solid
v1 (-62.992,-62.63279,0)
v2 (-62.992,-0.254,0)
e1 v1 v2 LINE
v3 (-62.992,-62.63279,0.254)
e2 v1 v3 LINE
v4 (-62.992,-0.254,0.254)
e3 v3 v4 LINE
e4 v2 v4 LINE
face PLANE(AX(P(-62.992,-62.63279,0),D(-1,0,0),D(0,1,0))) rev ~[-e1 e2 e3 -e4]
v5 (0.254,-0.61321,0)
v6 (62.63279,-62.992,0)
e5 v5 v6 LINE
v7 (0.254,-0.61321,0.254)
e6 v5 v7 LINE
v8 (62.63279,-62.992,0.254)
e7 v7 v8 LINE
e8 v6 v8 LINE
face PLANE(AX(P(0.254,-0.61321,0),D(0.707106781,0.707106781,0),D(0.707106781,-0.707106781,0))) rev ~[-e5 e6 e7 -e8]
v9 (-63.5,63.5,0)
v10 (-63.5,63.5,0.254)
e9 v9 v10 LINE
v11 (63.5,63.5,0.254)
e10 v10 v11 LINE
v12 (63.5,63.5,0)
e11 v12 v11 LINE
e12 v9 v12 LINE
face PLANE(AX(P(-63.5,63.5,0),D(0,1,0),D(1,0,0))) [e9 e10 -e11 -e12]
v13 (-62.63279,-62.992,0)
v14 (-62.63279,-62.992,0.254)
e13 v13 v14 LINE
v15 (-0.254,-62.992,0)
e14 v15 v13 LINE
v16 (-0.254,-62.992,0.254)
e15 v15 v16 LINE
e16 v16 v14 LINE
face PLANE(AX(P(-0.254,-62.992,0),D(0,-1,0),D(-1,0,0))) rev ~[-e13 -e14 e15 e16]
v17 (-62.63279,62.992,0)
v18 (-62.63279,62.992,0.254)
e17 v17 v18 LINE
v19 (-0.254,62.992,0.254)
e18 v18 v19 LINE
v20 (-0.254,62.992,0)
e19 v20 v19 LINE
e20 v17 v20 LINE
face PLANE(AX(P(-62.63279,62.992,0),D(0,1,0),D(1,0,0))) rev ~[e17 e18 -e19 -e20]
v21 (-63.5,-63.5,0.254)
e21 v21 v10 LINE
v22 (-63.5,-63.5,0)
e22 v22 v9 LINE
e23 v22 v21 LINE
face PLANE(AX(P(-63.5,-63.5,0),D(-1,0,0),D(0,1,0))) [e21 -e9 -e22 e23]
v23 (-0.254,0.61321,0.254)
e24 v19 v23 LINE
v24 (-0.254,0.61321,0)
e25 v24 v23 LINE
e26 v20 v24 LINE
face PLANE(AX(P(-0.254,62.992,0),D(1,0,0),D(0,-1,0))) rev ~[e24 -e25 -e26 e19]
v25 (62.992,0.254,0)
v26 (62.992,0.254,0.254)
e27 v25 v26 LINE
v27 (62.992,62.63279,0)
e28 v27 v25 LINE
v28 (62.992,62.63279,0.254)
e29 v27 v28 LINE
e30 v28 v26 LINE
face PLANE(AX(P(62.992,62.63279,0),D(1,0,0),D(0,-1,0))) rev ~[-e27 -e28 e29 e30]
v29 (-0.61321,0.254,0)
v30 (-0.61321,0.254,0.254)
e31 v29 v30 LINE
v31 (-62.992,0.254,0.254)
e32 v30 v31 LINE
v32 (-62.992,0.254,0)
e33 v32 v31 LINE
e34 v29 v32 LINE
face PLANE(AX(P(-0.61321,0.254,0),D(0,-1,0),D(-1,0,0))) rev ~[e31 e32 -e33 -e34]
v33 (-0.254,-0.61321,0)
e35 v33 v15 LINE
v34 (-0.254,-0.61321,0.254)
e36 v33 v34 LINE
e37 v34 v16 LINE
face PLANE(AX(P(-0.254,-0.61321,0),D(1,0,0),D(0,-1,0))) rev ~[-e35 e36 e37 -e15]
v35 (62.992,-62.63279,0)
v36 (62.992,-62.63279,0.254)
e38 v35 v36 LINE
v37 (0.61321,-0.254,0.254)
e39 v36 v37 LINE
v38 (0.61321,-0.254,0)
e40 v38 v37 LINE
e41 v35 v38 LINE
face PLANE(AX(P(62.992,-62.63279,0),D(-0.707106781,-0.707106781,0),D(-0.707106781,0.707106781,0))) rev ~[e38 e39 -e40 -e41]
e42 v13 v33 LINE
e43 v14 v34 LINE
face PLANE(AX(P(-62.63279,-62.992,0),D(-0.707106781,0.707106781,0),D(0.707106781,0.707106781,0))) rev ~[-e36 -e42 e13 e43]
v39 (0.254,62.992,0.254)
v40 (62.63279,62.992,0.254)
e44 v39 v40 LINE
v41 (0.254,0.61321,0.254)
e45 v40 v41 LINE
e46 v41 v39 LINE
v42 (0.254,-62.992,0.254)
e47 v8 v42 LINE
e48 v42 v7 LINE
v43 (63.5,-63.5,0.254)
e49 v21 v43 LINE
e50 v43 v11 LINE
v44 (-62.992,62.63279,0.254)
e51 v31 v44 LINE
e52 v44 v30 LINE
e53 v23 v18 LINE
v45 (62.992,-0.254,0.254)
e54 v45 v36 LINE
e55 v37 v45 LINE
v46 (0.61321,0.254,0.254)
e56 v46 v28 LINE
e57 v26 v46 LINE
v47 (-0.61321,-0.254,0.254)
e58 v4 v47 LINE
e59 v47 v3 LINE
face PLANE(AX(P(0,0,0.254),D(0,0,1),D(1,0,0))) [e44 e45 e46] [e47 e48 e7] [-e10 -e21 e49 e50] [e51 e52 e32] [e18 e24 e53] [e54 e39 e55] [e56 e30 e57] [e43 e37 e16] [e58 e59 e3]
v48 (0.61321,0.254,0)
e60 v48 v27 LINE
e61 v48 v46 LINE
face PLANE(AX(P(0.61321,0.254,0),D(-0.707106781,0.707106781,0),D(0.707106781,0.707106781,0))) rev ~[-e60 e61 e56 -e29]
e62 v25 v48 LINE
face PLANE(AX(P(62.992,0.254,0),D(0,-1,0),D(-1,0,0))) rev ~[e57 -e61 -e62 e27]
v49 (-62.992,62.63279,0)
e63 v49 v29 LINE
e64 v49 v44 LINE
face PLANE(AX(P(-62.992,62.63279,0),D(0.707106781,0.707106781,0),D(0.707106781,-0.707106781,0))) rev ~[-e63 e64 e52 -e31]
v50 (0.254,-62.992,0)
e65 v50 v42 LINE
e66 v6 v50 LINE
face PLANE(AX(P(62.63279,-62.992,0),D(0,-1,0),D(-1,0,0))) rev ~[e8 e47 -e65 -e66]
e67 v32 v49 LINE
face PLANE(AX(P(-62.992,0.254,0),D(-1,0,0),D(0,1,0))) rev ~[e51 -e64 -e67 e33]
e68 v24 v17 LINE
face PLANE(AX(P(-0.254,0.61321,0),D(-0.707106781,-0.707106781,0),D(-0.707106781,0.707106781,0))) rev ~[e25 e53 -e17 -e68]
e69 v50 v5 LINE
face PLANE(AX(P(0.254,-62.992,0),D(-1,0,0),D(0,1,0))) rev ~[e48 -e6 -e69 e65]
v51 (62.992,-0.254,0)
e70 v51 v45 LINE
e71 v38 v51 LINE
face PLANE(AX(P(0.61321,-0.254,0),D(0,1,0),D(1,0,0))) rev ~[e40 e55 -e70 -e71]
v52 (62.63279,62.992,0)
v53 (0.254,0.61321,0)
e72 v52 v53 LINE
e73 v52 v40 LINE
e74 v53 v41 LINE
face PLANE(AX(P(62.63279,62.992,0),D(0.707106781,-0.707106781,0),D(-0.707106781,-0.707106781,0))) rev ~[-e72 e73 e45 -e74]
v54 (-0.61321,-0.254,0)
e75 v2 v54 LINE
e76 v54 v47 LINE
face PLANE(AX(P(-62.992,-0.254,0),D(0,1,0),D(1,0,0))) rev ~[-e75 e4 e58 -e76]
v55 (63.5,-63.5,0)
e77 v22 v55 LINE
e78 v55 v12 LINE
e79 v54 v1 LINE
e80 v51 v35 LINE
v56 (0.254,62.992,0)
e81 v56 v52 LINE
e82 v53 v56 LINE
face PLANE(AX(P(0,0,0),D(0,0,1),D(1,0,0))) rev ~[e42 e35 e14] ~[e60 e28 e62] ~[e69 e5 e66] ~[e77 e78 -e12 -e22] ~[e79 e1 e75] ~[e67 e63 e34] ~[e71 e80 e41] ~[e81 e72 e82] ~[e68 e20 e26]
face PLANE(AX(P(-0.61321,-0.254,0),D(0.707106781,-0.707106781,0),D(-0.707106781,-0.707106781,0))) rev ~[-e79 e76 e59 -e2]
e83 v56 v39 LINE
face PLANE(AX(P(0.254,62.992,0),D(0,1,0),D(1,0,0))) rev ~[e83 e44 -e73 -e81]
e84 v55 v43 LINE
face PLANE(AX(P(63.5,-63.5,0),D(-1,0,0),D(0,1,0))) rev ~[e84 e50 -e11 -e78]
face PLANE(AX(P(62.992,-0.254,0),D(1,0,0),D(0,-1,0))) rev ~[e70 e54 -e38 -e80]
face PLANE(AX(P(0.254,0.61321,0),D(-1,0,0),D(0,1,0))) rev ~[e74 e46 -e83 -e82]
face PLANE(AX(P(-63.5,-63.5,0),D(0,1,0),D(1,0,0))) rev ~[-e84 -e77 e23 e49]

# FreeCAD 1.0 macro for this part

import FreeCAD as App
import Part
import Sketcher

V = App.Vector
Q = App.Units.Quantity

doc = App.newDocument("Part")
body = doc.addObject("PartDesign::Body", "Body")

# Sketch on XY plane
sketch1 = body.newObject("Sketcher::SketchObject", "Sketch")
sketch1.AttachmentSupport = (doc.getObject("XY_Plane"), [""])
sketch1.MapMode = "FlatFace"
sketch1.addGeometry(Part.LineSegment(V(-63.5, 63.5, 0), V(-63.5, -63.5, 0)), False)
sketch1.addGeometry(Part.LineSegment(V(-63.5, -63.5, 0), V(63.5, -63.5, 0)), False)
sketch1.addGeometry(Part.LineSegment(V(63.5, -63.5, 0), V(63.5, 63.5, 0)), False)
sketch1.addGeometry(Part.LineSegment(V(63.5, 63.5, 0), V(-63.5, 63.5, 0)), False)
sketch1.addGeometry(Part.LineSegment(V(-0.254, -0.61321, 0), V(-0.254, -62.992, 0)), False)
sketch1.addGeometry(Part.LineSegment(V(-0.254, -62.992, 0), V(-62.63279, -62.992, 0)), False)
sketch1.addGeometry(Part.LineSegment(V(-62.63279, -62.992, 0), V(-0.254, -0.61321, 0)), False)
sketch1.addGeometry(Part.LineSegment(V(-62.992, -0.254, 0), V(-0.61321, -0.254, 0)), False)
sketch1.addGeometry(Part.LineSegment(V(-0.61321, -0.254, 0), V(-62.992, -62.63279, 0)), False)
sketch1.addGeometry(Part.LineSegment(V(-62.992, -62.63279, 0), V(-62.992, -0.254, 0)), False)
sketch1.addGeometry(Part.LineSegment(V(0.254, -0.61321, 0), V(62.63279, -62.992, 0)), False)
sketch1.addGeometry(Part.LineSegment(V(62.63279, -62.992, 0), V(0.254, -62.992, 0)), False)
sketch1.addGeometry(Part.LineSegment(V(0.254, -62.992, 0), V(0.254, -0.61321, 0)), False)
sketch1.addGeometry(Part.LineSegment(V(0.61321, -0.254, 0), V(62.992, -0.254, 0)), False)
sketch1.addGeometry(Part.LineSegment(V(62.992, -0.254, 0), V(62.992, -62.63279, 0)), False)
sketch1.addGeometry(Part.LineSegment(V(62.992, -62.63279, 0), V(0.61321, -0.254, 0)), False)
sketch1.addGeometry(Part.LineSegment(V(-0.61321, 0.254, 0), V(-62.992, 0.254, 0)), False)
sketch1.addGeometry(Part.LineSegment(V(-62.992, 0.254, 0), V(-62.992, 62.63279, 0)), False)
sketch1.addGeometry(Part.LineSegment(V(-62.992, 62.63279, 0), V(-0.61321, 0.254, 0)), False)
sketch1.addGeometry(Part.LineSegment(V(-0.254, 62.992, 0), V(-0.254, 0.61321, 0)), False)
sketch1.addGeometry(Part.LineSegment(V(-0.254, 0.61321, 0), V(-62.63279, 62.992, 0)), False)
sketch1.addGeometry(Part.LineSegment(V(-62.63279, 62.992, 0), V(-0.254, 62.992, 0)), False)
sketch1.addGeometry(Part.LineSegment(V(62.992, 0.254, 0), V(0.61321, 0.254, 0)), False)
sketch1.addGeometry(Part.LineSegment(V(0.61321, 0.254, 0), V(62.992, 62.63279, 0)), False)
sketch1.addGeometry(Part.LineSegment(V(62.992, 62.63279, 0), V(62.992, 0.254, 0)), False)
sketch1.addGeometry(Part.LineSegment(V(62.63279, 62.992, 0), V(0.254, 0.61321, 0)), False)
sketch1.addGeometry(Part.LineSegment(V(0.254, 0.61321, 0), V(0.254, 62.992, 0)), False)
sketch1.addGeometry(Part.LineSegment(V(0.254, 62.992, 0), V(62.63279, 62.992, 0)), False)
sketch1.addConstraint(Sketcher.Constraint("Coincident", 0, 2, 1, 1))
sketch1.addConstraint(Sketcher.Constraint("Coincident", 1, 2, 2, 1))
sketch1.addConstraint(Sketcher.Constraint("Coincident", 2, 2, 3, 1))
sketch1.addConstraint(Sketcher.Constraint("Coincident", 3, 2, 0, 1))
sketch1.addConstraint(Sketcher.Constraint("Coincident", 4, 2, 5, 1))
sketch1.addConstraint(Sketcher.Constraint("Coincident", 5, 2, 6, 1))
sketch1.addConstraint(Sketcher.Constraint("Coincident", 6, 2, 4, 1))
sketch1.addConstraint(Sketcher.Constraint("Coincident", 7, 2, 8, 1))
sketch1.addConstraint(Sketcher.Constraint("Coincident", 8, 2, 9, 1))
sketch1.addConstraint(Sketcher.Constraint("Coincident", 9, 2, 7, 1))
sketch1.addConstraint(Sketcher.Constraint("Coincident", 10, 2, 11, 1))
sketch1.addConstraint(Sketcher.Constraint("Coincident", 11, 2, 12, 1))
sketch1.addConstraint(Sketcher.Constraint("Coincident", 12, 2, 10, 1))
sketch1.addConstraint(Sketcher.Constraint("Coincident", 13, 2, 14, 1))
sketch1.addConstraint(Sketcher.Constraint("Coincident", 14, 2, 15, 1))
sketch1.addConstraint(Sketcher.Constraint("Coincident", 15, 2, 13, 1))
sketch1.addConstraint(Sketcher.Constraint("Coincident", 16, 2, 17, 1))
sketch1.addConstraint(Sketcher.Constraint("Coincident", 17, 2, 18, 1))
sketch1.addConstraint(Sketcher.Constraint("Coincident", 18, 2, 16, 1))
sketch1.addConstraint(Sketcher.Constraint("Coincident", 19, 2, 20, 1))
sketch1.addConstraint(Sketcher.Constraint("Coincident", 20, 2, 21, 1))
sketch1.addConstraint(Sketcher.Constraint("Coincident", 21, 2, 19, 1))
sketch1.addConstraint(Sketcher.Constraint("Coincident", 22, 2, 23, 1))
sketch1.addConstraint(Sketcher.Constraint("Coincident", 23, 2, 24, 1))
sketch1.addConstraint(Sketcher.Constraint("Coincident", 24, 2, 22, 1))
sketch1.addConstraint(Sketcher.Constraint("Coincident", 25, 2, 26, 1))
sketch1.addConstraint(Sketcher.Constraint("Coincident", 26, 2, 27, 1))
sketch1.addConstraint(Sketcher.Constraint("Coincident", 27, 2, 25, 1))
sketch1.addConstraint(Sketcher.Constraint("Vertical", 0))
sketch1.addConstraint(Sketcher.Constraint("Horizontal", 1))
sketch1.addConstraint(Sketcher.Constraint("Vertical", 2))
sketch1.addConstraint(Sketcher.Constraint("Horizontal", 3))
sketch1.addConstraint(Sketcher.Constraint("Vertical", 4))
sketch1.addConstraint(Sketcher.Constraint("Horizontal", 5))
sketch1.addConstraint(Sketcher.Constraint("Horizontal", 7))
sketch1.addConstraint(Sketcher.Constraint("Vertical", 9))
sketch1.addConstraint(Sketcher.Constraint("Horizontal", 11))
sketch1.addConstraint(Sketcher.Constraint("Vertical", 12))
sketch1.addConstraint(Sketcher.Constraint("Horizontal", 13))
sketch1.addConstraint(Sketcher.Constraint("Vertical", 14))
sketch1.addConstraint(Sketcher.Constraint("Horizontal", 16))
sketch1.addConstraint(Sketcher.Constraint("Vertical", 17))
sketch1.addConstraint(Sketcher.Constraint("Vertical", 19))
sketch1.addConstraint(Sketcher.Constraint("Horizontal", 21))
sketch1.addConstraint(Sketcher.Constraint("Horizontal", 22))
sketch1.addConstraint(Sketcher.Constraint("Vertical", 24))
sketch1.addConstraint(Sketcher.Constraint("Vertical", 26))
sketch1.addConstraint(Sketcher.Constraint("Horizontal", 27))
sketch1.addConstraint(Sketcher.Constraint("Symmetric", 0, 2, 2, 2, -1, 1))
sketch1.addConstraint(Sketcher.Constraint("Symmetric", 13, 2, 16, 2, -1, 1))
sketch1.addConstraint(Sketcher.Constraint("Symmetric", 12, 2, 19, 2, -1, 1))
sketch1.addConstraint(Sketcher.Constraint("Symmetric", 10, 2, 20, 2, -1, 1))
sketch1.addConstraint(Sketcher.Constraint("Symmetric", 7, 2, 22, 2, -1, 1))
sketch1.addConstraint(Sketcher.Constraint("Symmetric", 8, 2, 23, 2, -1, 1))
sketch1.addConstraint(Sketcher.Constraint("Symmetric", 6, 2, 25, 2, -1, 1))
sketch1.addConstraint(Sketcher.Constraint("Symmetric", 5, 2, 27, 2, -1, 1))
sketch1.addConstraint(Sketcher.Constraint("Symmetric", 5, 2, 10, 2, -2))
sketch1.addConstraint(Sketcher.Constraint("Symmetric", 6, 2, 12, 2, -2))
sketch1.addConstraint(Sketcher.Constraint("Symmetric", 9, 2, 13, 2, -2))
sketch1.addConstraint(Sketcher.Constraint("Parallel", 6, 8))
sketch1.addConstraint(Sketcher.Constraint("Perpendicular", 8, 10))
sketch1.addConstraint(Sketcher.Constraint("Parallel", 10, 15))
sketch1.addConstraint(Sketcher.Constraint("Parallel", 15, 18))
sketch1.addConstraint(Sketcher.Constraint("Horizontal", 8, 2, 14, 2))
sketch1.addConstraint(Sketcher.Constraint("Horizontal", 17, 2, 23, 2))
sketch1.addConstraint(Sketcher.Constraint("Equal", 5, 7))
sketch1.addConstraint(Sketcher.Constraint("Equal", 3, 0))
sketch1.addConstraint(Sketcher.Constraint("DistanceX", 1, 1, 1, 2, Q("5 in")))
sketch1.addConstraint(Sketcher.Constraint("DistanceX", 4, 2, -1, 1, Q("0.01 in")))
sketch1.addConstraint(Sketcher.Constraint("DistanceY", 4, 2, -1, 1, Q("2.48 in")))
sketch1.addConstraint(Sketcher.Constraint("DistanceY", 7, 2, -1, 1, Q("0.01 in")))
sketch1.addConstraint(Sketcher.Constraint("DistanceX", 8, 2, -1, 1, Q("2.48 in")))
sketch1.addConstraint(Sketcher.Constraint("DistanceX", 5, 2, 5, 1, 62.37879))
pad1 = body.newObject("PartDesign::Pad", "Pad")
pad1.Profile = sketch1
pad1.Length = Q("0.01 in")

doc.recompute()
